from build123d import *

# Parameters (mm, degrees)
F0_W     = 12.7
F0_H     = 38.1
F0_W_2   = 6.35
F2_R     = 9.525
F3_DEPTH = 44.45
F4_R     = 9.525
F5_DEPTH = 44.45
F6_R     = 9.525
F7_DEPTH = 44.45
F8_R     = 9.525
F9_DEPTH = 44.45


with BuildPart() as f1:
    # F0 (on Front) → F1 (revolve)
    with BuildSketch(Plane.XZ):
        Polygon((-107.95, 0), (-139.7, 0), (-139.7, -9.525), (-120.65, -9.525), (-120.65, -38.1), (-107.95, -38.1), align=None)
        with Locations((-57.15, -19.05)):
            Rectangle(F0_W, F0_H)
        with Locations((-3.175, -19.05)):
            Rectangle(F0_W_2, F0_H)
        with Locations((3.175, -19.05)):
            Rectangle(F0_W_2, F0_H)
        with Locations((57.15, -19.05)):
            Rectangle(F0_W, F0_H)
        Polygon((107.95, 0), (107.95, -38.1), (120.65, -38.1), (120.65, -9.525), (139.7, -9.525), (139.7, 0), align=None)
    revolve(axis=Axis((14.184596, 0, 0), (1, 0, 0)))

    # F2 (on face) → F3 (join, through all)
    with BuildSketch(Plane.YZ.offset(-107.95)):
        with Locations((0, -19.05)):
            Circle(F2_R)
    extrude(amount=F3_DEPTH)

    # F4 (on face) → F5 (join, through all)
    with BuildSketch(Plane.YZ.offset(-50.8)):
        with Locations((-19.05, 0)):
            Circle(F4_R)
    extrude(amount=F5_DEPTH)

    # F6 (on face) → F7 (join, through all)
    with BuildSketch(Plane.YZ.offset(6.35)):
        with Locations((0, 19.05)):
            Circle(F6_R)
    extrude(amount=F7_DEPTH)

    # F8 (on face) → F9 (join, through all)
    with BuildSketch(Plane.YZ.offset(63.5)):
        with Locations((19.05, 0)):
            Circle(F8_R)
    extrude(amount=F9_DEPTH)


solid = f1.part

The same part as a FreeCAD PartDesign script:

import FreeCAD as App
import Part
import Sketcher
from FreeCAD import Vector
Q = App.Units.Quantity

doc = App.newDocument("Part")
params = doc.addObject("Spreadsheet::Sheet", "Params")
for row, (alias, value) in enumerate([
    ("sketch1_width", "0.5 in"),
    ("sketch1_height", "1.5 in"),
    ("sketch1_height2", "0.375 in"),
    ("revolution_angle", "360 deg"),
    ("sketch2_diameter", "0.75 in"),
    ("pad1_length", "1.75 in"),
    ("sketch3_diameter", "0.75 in"),
    ("pad2_length", "1.75 in"),
    ("sketch4_diameter", "0.75 in"),
    ("pad3_length", "1.75 in"),
    ("sketch5_diameter", "0.75 in"),
], start=1):
    params.set(f"A{row}", alias)
    params.set(f"B{row}", "=" + value)
    params.setAlias(f"B{row}", alias)

body = doc.addObject("PartDesign::Body", "Body")
body.AllowCompound = True

# Sketch on XZ plane
sketch1 = body.newObject("Sketcher::SketchObject", "Sketch")
sketch1.AttachmentSupport = (doc.getObject("XZ_Plane"), [""])
sketch1.MapMode = "FlatFace"
sketch1.addGeometry(Part.LineSegment(Vector(-108, 0, 0), Vector(-140, 0, 0)), False)
sketch1.addGeometry(Part.LineSegment(Vector(-140, 0, 0), Vector(-140, -10, 0)), False)
sketch1.addGeometry(Part.LineSegment(Vector(-140, -10, 0), Vector(-121, -10, 0)), False)
sketch1.addGeometry(Part.LineSegment(Vector(-121, -10, 0), Vector(-121, -38, 0)), False)
sketch1.addGeometry(Part.LineSegment(Vector(-121, -38, 0), Vector(-108, -38, 0)), False)
sketch1.addGeometry(Part.LineSegment(Vector(-108, -38, 0), Vector(-108, 0, 0)), False)
sketch1.addGeometry(Part.LineSegment(Vector(-64, 0, 0), Vector(-64, -38, 0)), False)
sketch1.addGeometry(Part.LineSegment(Vector(-64, -38, 0), Vector(-51, -38, 0)), False)
sketch1.addGeometry(Part.LineSegment(Vector(-51, -38, 0), Vector(-51, 0, 0)), False)
sketch1.addGeometry(Part.LineSegment(Vector(-51, 0, 0), Vector(-64, 0, 0)), False)
sketch1.addGeometry(Part.LineSegment(Vector(-6, 0, 0), Vector(-6, -38, 0)), False)
sketch1.addGeometry(Part.LineSegment(Vector(-6, -38, 0), Vector(6, -38, 0)), False)
sketch1.addGeometry(Part.LineSegment(Vector(6, -38, 0), Vector(6, 0, 0)), False)
sketch1.addGeometry(Part.LineSegment(Vector(6, 0, 0), Vector(-6, 0, 0)), False)
sketch1.addGeometry(Part.LineSegment(Vector(51, 0, 0), Vector(51, -38, 0)), False)
sketch1.addGeometry(Part.LineSegment(Vector(51, -38, 0), Vector(64, -38, 0)), False)
sketch1.addGeometry(Part.LineSegment(Vector(64, -38, 0), Vector(64, 0, 0)), False)
sketch1.addGeometry(Part.LineSegment(Vector(64, 0, 0), Vector(51, 0, 0)), False)
sketch1.addGeometry(Part.LineSegment(Vector(108, 0, 0), Vector(108, -38, 0)), False)
sketch1.addGeometry(Part.LineSegment(Vector(108, -38, 0), Vector(121, -38, 0)), False)
sketch1.addGeometry(Part.LineSegment(Vector(121, -38, 0), Vector(121, -10, 0)), False)
sketch1.addGeometry(Part.LineSegment(Vector(121, -10, 0), Vector(140, -10, 0)), False)
sketch1.addGeometry(Part.LineSegment(Vector(140, -10, 0), Vector(140, 0, 0)), False)
sketch1.addGeometry(Part.LineSegment(Vector(140, 0, 0), Vector(108, 0, 0)), False)
sketch1.addConstraint(Sketcher.Constraint("Coincident", 0, 2, 1, 1))
sketch1.addConstraint(Sketcher.Constraint("Coincident", 1, 2, 2, 1))
sketch1.addConstraint(Sketcher.Constraint("Coincident", 2, 2, 3, 1))
sketch1.addConstraint(Sketcher.Constraint("Coincident", 3, 2, 4, 1))
sketch1.addConstraint(Sketcher.Constraint("Coincident", 4, 2, 5, 1))
sketch1.addConstraint(Sketcher.Constraint("Coincident", 5, 2, 0, 1))
sketch1.addConstraint(Sketcher.Constraint("Coincident", 6, 2, 7, 1))
sketch1.addConstraint(Sketcher.Constraint("Coincident", 7, 2, 8, 1))
sketch1.addConstraint(Sketcher.Constraint("Coincident", 8, 2, 9, 1))
sketch1.addConstraint(Sketcher.Constraint("Coincident", 9, 2, 6, 1))
sketch1.addConstraint(Sketcher.Constraint("Coincident", 10, 2, 11, 1))
sketch1.addConstraint(Sketcher.Constraint("Coincident", 11, 2, 12, 1))
sketch1.addConstraint(Sketcher.Constraint("Coincident", 12, 2, 13, 1))
sketch1.addConstraint(Sketcher.Constraint("Coincident", 13, 2, 10, 1))
sketch1.addConstraint(Sketcher.Constraint("Coincident", 14, 2, 15, 1))
sketch1.addConstraint(Sketcher.Constraint("Coincident", 15, 2, 16, 1))
sketch1.addConstraint(Sketcher.Constraint("Coincident", 16, 2, 17, 1))
sketch1.addConstraint(Sketcher.Constraint("Coincident", 17, 2, 14, 1))
sketch1.addConstraint(Sketcher.Constraint("Coincident", 18, 2, 19, 1))
sketch1.addConstraint(Sketcher.Constraint("Coincident", 19, 2, 20, 1))
sketch1.addConstraint(Sketcher.Constraint("Coincident", 20, 2, 21, 1))
sketch1.addConstraint(Sketcher.Constraint("Coincident", 21, 2, 22, 1))
sketch1.addConstraint(Sketcher.Constraint("Coincident", 22, 2, 23, 1))
sketch1.addConstraint(Sketcher.Constraint("Coincident", 23, 2, 18, 1))
sketch1.addConstraint(Sketcher.Constraint("Horizontal", 0))
sketch1.addConstraint(Sketcher.Constraint("Vertical", 1))
sketch1.addConstraint(Sketcher.Constraint("Horizontal", 2))
sketch1.addConstraint(Sketcher.Constraint("Vertical", 3))
sketch1.addConstraint(Sketcher.Constraint("Horizontal", 4))
sketch1.addConstraint(Sketcher.Constraint("Vertical", 5))
sketch1.addConstraint(Sketcher.Constraint("Vertical", 6))
sketch1.addConstraint(Sketcher.Constraint("Horizontal", 7))
sketch1.addConstraint(Sketcher.Constraint("Vertical", 8))
sketch1.addConstraint(Sketcher.Constraint("Horizontal", 9))
sketch1.addConstraint(Sketcher.Constraint("Vertical", 10))
sketch1.addConstraint(Sketcher.Constraint("Horizontal", 11))
sketch1.addConstraint(Sketcher.Constraint("Vertical", 12))
sketch1.addConstraint(Sketcher.Constraint("Horizontal", 13))
sketch1.addConstraint(Sketcher.Constraint("Vertical", 14))
sketch1.addConstraint(Sketcher.Constraint("Horizontal", 15))
sketch1.addConstraint(Sketcher.Constraint("Vertical", 16))
sketch1.addConstraint(Sketcher.Constraint("Horizontal", 17))
sketch1.addConstraint(Sketcher.Constraint("Vertical", 18))
sketch1.addConstraint(Sketcher.Constraint("Horizontal", 19))
sketch1.addConstraint(Sketcher.Constraint("Vertical", 20))
sketch1.addConstraint(Sketcher.Constraint("Horizontal", 21))
sketch1.addConstraint(Sketcher.Constraint("Vertical", 22))
sketch1.addConstraint(Sketcher.Constraint("Horizontal", 23))
sketch1.addConstraint(Sketcher.Constraint("Symmetric", 12, 2, 13, 2, -1, 1))
sketch1.addConstraint(Sketcher.Constraint("Symmetric", 9, 2, 16, 2, -1, 1))
sketch1.addConstraint(Sketcher.Constraint("Symmetric", 0, 2, 22, 2, -1, 1))
sketch1.addConstraint(Sketcher.Constraint("Symmetric", 7, 2, 14, 2, -2))
sketch1.addConstraint(Sketcher.Constraint("Symmetric", 4, 2, 18, 2, -2))
sketch1.addConstraint(Sketcher.Constraint("Symmetric", 2, 2, 20, 2, -2))
sketch1.addConstraint(Sketcher.Constraint("PointOnObject", 0, 2, -1))
sketch1.addConstraint(Sketcher.Constraint("PointOnObject", 8, 2, -1))
sketch1.addConstraint(Sketcher.Constraint("Horizontal", 4, 2, 6, 2))
sketch1.addConstraint(Sketcher.Constraint("Horizontal", 7, 2, 10, 2))
sketch1.addConstraint(Sketcher.Constraint("Equal", 4, 7))
sketch1.addConstraint(Sketcher.Constraint("Equal", 9, 11))
sketch1.addConstraint(Sketcher.Constraint("DistanceX", 4, 1, 4, 2, Q("0.5 in")))
sketch1.addConstraint(Sketcher.Constraint("DistanceY", 5, 1, 5, 2, Q("1.5 in")))
sketch1.addConstraint(Sketcher.Constraint("DistanceX", 7, 2, -1, 1, Q("2 in")))
sketch1.addConstraint(Sketcher.Constraint("DistanceX", 1, 2, 6, 2, Q("3 in")))
sketch1.addConstraint(Sketcher.Constraint("DistanceX", 4, 2, 10, 2, Q("4 in")))
sketch1.addConstraint(Sketcher.Constraint("DistanceY", 1, 2, 1, 1, Q("0.375 in")))
sketch1.setExpression("Constraints[60]", "Params.sketch1_width")
sketch1.setExpression("Constraints[61]", "Params.sketch1_height")
sketch1.setExpression("Constraints[65]", "Params.sketch1_height2")
revolution = body.newObject("PartDesign::Revolution", "Revolution")
revolution.Profile = sketch1
revolution.ReferenceAxis = (sketch1, ["H_Axis"])
revolution.setExpression("Angle", "Params.revolution_angle")

# Sketch on YZ plane
sketch2 = body.newObject("Sketcher::SketchObject", "Sketch001")
sketch2.AttachmentSupport = (doc.getObject("YZ_Plane"), [""])
sketch2.MapMode = "FlatFace"
sketch2.AttachmentOffset = App.Placement(Vector(0, 0, -4.25 * 25.4), App.Rotation())
sketch2.addGeometry(Part.Circle(Vector(0, -19, 0), Vector(0, 0, 1), 10), False)
sketch2.addConstraint(Sketcher.Constraint("PointOnObject", 0, 3, -2))
sketch2.addConstraint(Sketcher.Constraint("Diameter", 0, Q("0.75 in")))
sketch2.addConstraint(Sketcher.Constraint("DistanceY", 0, 3, -1, 1, Q("0.75 in")))
sketch2.setExpression("Constraints[1]", "Params.sketch2_diameter")
pad1 = body.newObject("PartDesign::Pad", "Pad")
pad1.Profile = sketch2
pad1.setExpression("Length", "Params.pad1_length")

# Sketch on YZ plane
sketch3 = body.newObject("Sketcher::SketchObject", "Sketch002")
sketch3.AttachmentSupport = (doc.getObject("YZ_Plane"), [""])
sketch3.MapMode = "FlatFace"
sketch3.AttachmentOffset = App.Placement(Vector(0, 0, -2 * 25.4), App.Rotation())
sketch3.addGeometry(Part.Circle(Vector(-19, 0, 0), Vector(0, 0, 1), 10), False)
sketch3.addConstraint(Sketcher.Constraint("PointOnObject", 0, 3, -1))
sketch3.addConstraint(Sketcher.Constraint("Diameter", 0, Q("0.75 in")))
sketch3.addConstraint(Sketcher.Constraint("DistanceX", 0, 3, -1, 1, Q("0.75 in")))
sketch3.setExpression("Constraints[1]", "Params.sketch3_diameter")
pad2 = body.newObject("PartDesign::Pad", "Pad001")
pad2.Profile = sketch3
pad2.setExpression("Length", "Params.pad2_length")

# Sketch on YZ plane
sketch4 = body.newObject("Sketcher::SketchObject", "Sketch003")
sketch4.AttachmentSupport = (doc.getObject("YZ_Plane"), [""])
sketch4.MapMode = "FlatFace"
sketch4.AttachmentOffset = App.Placement(Vector(0, 0, 0.25 * 25.4), App.Rotation())
sketch4.addGeometry(Part.Circle(Vector(0, 19, 0), Vector(0, 0, 1), 10), False)
sketch4.addConstraint(Sketcher.Constraint("PointOnObject", 0, 3, -2))
sketch4.addConstraint(Sketcher.Constraint("Diameter", 0, Q("0.75 in")))
sketch4.addConstraint(Sketcher.Constraint("DistanceY", -1, 1, 0, 3, Q("0.75 in")))
sketch4.setExpression("Constraints[1]", "Params.sketch4_diameter")
pad3 = body.newObject("PartDesign::Pad", "Pad002")
pad3.Profile = sketch4
pad3.setExpression("Length", "Params.pad3_length")

# Sketch on YZ plane
sketch5 = body.newObject("Sketcher::SketchObject", "Sketch004")
sketch5.AttachmentSupport = (doc.getObject("YZ_Plane"), [""])
sketch5.MapMode = "FlatFace"
sketch5.AttachmentOffset = App.Placement(Vector(0, 0, 2.5 * 25.4), App.Rotation())
sketch5.addGeometry(Part.Circle(Vector(19, 0, 0), Vector(0, 0, 1), 10), False)
sketch5.addConstraint(Sketcher.Constraint("PointOnObject", 0, 3, -1))
sketch5.addConstraint(Sketcher.Constraint("Diameter", 0, Q("0.75 in")))
sketch5.addConstraint(Sketcher.Constraint("DistanceX", -1, 1, 0, 3, Q("0.75 in")))
sketch5.setExpression("Constraints[1]", "Params.sketch5_diameter")
pad4 = body.newObject("PartDesign::Pad", "Pad003")
pad4.Profile = sketch5
pad4.Type = "UpToLast"

doc.recompute()
